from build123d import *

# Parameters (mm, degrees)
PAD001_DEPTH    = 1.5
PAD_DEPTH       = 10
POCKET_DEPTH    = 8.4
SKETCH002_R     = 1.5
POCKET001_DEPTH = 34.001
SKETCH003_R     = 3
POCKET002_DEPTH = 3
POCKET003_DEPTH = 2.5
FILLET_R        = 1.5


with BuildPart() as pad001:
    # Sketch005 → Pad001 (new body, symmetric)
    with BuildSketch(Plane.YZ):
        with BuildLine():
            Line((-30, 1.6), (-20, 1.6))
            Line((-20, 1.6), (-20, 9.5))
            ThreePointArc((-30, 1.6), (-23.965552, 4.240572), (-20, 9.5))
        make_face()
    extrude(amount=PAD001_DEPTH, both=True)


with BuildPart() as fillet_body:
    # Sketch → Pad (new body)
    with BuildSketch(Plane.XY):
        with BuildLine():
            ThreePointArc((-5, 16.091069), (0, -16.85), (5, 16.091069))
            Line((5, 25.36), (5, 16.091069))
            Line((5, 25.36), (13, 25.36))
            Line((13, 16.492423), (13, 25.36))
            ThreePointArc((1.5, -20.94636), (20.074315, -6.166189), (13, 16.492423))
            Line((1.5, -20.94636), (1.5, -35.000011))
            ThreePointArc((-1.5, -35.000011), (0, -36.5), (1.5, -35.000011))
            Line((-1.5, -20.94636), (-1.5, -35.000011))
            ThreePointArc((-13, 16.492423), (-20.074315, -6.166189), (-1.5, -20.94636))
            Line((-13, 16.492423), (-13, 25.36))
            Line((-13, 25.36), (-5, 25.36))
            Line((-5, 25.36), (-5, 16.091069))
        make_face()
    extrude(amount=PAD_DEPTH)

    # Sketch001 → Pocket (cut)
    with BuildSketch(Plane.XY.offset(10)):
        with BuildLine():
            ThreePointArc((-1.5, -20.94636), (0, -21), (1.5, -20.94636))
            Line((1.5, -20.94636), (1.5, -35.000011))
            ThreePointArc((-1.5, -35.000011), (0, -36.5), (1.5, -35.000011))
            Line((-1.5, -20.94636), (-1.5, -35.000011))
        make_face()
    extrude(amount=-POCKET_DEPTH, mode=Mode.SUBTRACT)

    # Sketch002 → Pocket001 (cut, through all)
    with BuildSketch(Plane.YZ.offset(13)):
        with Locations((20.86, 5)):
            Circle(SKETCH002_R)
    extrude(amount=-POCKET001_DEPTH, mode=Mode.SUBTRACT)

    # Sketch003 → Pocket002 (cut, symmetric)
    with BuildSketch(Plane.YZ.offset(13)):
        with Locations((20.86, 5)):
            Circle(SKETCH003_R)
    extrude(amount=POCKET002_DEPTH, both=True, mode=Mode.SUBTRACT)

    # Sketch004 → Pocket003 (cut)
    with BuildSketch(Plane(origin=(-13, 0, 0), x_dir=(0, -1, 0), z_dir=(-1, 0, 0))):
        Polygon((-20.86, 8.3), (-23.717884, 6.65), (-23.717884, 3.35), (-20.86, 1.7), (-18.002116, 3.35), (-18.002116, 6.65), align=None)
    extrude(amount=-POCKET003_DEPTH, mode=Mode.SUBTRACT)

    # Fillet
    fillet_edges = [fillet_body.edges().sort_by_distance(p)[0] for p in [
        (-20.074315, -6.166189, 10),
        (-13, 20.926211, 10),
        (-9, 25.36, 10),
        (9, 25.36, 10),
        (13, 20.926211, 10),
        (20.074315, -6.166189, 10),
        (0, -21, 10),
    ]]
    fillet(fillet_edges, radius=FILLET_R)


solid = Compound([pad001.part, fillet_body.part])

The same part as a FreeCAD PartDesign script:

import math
import FreeCAD as App
import Part
import Sketcher
from FreeCAD import Vector
Q = App.Units.Quantity


def edges_at(feature, points):
    """Names of the edges that pass closest to the given points."""
    edges = feature.Shape.Edges
    near = lambda p: min(range(len(edges)), key=lambda i: edges[i].distToShape(Part.Vertex(*p))[0])
    return sorted({f"Edge{near(p) + 1}" for p in points})


def add_polygon(sketch, points):
    """Adds a closed chain of lines whose ends are joined by coincident constraints."""
    first, n = sketch.GeometryCount, len(points)
    for a, b in zip(points, points[1:] + points[:1]):
        sketch.addGeometry(Part.LineSegment(App.Vector(*a, 0), App.Vector(*b, 0)), False)
    for i in range(n):
        sketch.addConstraint(Sketcher.Constraint("Coincident", first + i, 2, first + (i + 1) % n, 1))

doc = App.newDocument("Part")
body = doc.addObject("PartDesign::Body", "Body")

# Sketch on YZ plane
sketch1 = doc.addObject("Sketcher::SketchObject", "Sketch")
body.addObject(sketch1)
sketch1.AttachmentSupport = (doc.YZ_Plane, [""])
sketch1.MapMode = "FlatFace"
sketch1.addGeometry([
    Part.LineSegment(Vector(-30, 2, 0), Vector(-20, 2, 0)),
    Part.LineSegment(Vector(-20, 2, 0), Vector(-20, 10, 0)),
    Part.ArcOfCircle(Part.Circle(Vector(-32, 14, 0), Vector(0, 0, 1), 13), math.radians(-81), math.radians(-22)),
], False)
sketch1.addConstraint([
    Sketcher.Constraint("Coincident", 0, 2, 1, 1),
    Sketcher.Constraint("Coincident", 1, 2, 2, 2),
    Sketcher.Constraint("Coincident", 2, 1, 0, 1),
    Sketcher.Constraint("Horizontal", 0),
    Sketcher.Constraint("Vertical", 1),
    Sketcher.Constraint("DistanceX", 0, 1, 0, 2, Q("10 mm")),
    Sketcher.Constraint("DistanceY", 1, 1, 1, 2, Q("7.9 mm")),
    Sketcher.Constraint("DistanceX", 0, 2, -1, 1, Q("20 mm")),
    Sketcher.Constraint("DistanceY", -1, 1, 0, 2, Q("1.6 mm")),
    Sketcher.Constraint("Radius", 2, Q("13.000004 mm")),
])
pad1 = doc.addObject("PartDesign::Pad", "Pad")
body.addObject(pad1)
pad1.Profile = sketch1
pad1.Length = 3
pad1.Midplane = True
body2 = doc.addObject("PartDesign::Body", "Body001")

# Sketch on XY plane
sketch2 = doc.addObject("Sketcher::SketchObject", "Sketch001")
body2.addObject(sketch2)
sketch2.AttachmentSupport = (doc.getObject("XY_Plane001"), [""])
sketch2.MapMode = "FlatFace"
sketch2.addGeometry([
    Part.ArcOfCircle(Part.Circle(Vector(0, 0, 0), Vector(0, 0, 1), 16.9), math.radians(107), math.radians(433)),  # 0
    Part.LineSegment(Vector(-5, 16.1, 0), Vector(-5, 25.4, 0)),  # 1
    Part.LineSegment(Vector(-5, 25.4, 0), Vector(-13, 25.4, 0)),  # 2
    Part.LineSegment(Vector(-13, 25.4, 0), Vector(-13, 16.5, 0)),  # 3
    Part.ArcOfCircle(Part.Circle(Vector(0, 0, 0), Vector(0, 0, 1), 21), math.radians(128), math.radians(266)),  # 4
    Part.LineSegment(Vector(-1.5, -20.9, 0), Vector(-1.5, -35, 0)),  # 5
    Part.ArcOfCircle(Part.Circle(Vector(0, -35, 0), Vector(0, 0, 1), 1.5), math.radians(-180), math.radians(0)),  # 6
    Part.LineSegment(Vector(1.5, -35, 0), Vector(1.5, -20.9, 0)),  # 7
    Part.ArcOfCircle(Part.Circle(Vector(0, 0, 0), Vector(0, 0, 1), 21), math.radians(-86), math.radians(52)),  # 8
    Part.LineSegment(Vector(13, 16.5, 0), Vector(13, 25.4, 0)),  # 9
    Part.LineSegment(Vector(13, 25.4, 0), Vector(5, 25.4, 0)),  # 10
    Part.LineSegment(Vector(5, 25.4, 0), Vector(5, 16.1, 0)),  # 11
], False)
sketch2.addConstraint([
    Sketcher.Constraint("Coincident", 0, 1, 1, 1),
    Sketcher.Constraint("Coincident", 1, 2, 2, 1),
    Sketcher.Constraint("Coincident", 2, 2, 3, 1),
    Sketcher.Constraint("Coincident", 3, 2, 4, 1),
    Sketcher.Constraint("Coincident", 4, 2, 5, 1),
    Sketcher.Constraint("Coincident", 5, 2, 6, 1),
    Sketcher.Constraint("Coincident", 6, 2, 7, 1),
    Sketcher.Constraint("Coincident", 7, 2, 8, 1),
    Sketcher.Constraint("Coincident", 8, 2, 9, 1),
    Sketcher.Constraint("Coincident", 9, 2, 10, 1),
    Sketcher.Constraint("Coincident", 10, 2, 11, 1),
    Sketcher.Constraint("Coincident", 11, 2, 0, 2),
    Sketcher.Constraint("Vertical", 1),
    Sketcher.Constraint("Horizontal", 2),
    Sketcher.Constraint("Vertical", 3),
    Sketcher.Constraint("Vertical", 5),
    Sketcher.Constraint("Vertical", 7),
    Sketcher.Constraint("Vertical", 9),
    Sketcher.Constraint("Horizontal", 10),
    Sketcher.Constraint("Vertical", 11),
    Sketcher.Constraint("Coincident", 0, 3, -1, 1),
    Sketcher.Constraint("Coincident", 4, 3, -1, 1),
    Sketcher.Constraint("Coincident", 8, 3, -1, 1),
    Sketcher.Constraint("Equal", 4, 8),
    Sketcher.Constraint("Symmetric", 5, 2, 6, 2, -2),
    Sketcher.Constraint("Symmetric", 2, 2, 9, 2, -2),
    Sketcher.Constraint("Horizontal", 0, 1, 11, 2),
    Sketcher.Constraint("Radius", 4, Q("21 mm")),
    Sketcher.Constraint("Radius", 6, Q("1.5 mm")),
    Sketcher.Constraint("DistanceX", 2, 2, 2, 1, Q("8 mm")),
    Sketcher.Constraint("Radius", 0, Q("16.85 mm")),
    Sketcher.Constraint("DistanceY", 6, 3, -1, 1, Q("35 mm")),
    Sketcher.Constraint("DistanceX", 0, 1, -1, 1, Q("5 mm")),
    Sketcher.Constraint("DistanceY", -1, 1, 1, 2, Q("25.36 mm")),
    Sketcher.Constraint("DistanceY", 5, 2, 5, 1, Q("14.053651 mm")),
])
pad2 = doc.addObject("PartDesign::Pad", "Pad001")
body2.addObject(pad2)
pad2.Profile = sketch2
pad2.Length = 10

# Sketch on XY plane
sketch3 = doc.addObject("Sketcher::SketchObject", "Sketch002")
body2.addObject(sketch3)
sketch3.AttachmentSupport = (doc.getObject("XY_Plane001"), [""])
sketch3.MapMode = "FlatFace"
sketch3.AttachmentOffset = App.Placement(Vector(0, 0, 10), App.Rotation())
sketch3.addGeometry([
    Part.ArcOfCircle(Part.Circle(Vector(0, 0, 0), Vector(0, 0, 1), 21), math.radians(-94.1), math.radians(-85.9)),
    Part.LineSegment(Vector(-1.5, -20.9, 0), Vector(-1.5, -35, 0)),
    Part.ArcOfCircle(Part.Circle(Vector(0, -35, 0), Vector(0, 0, 1), 1.5), math.radians(-180), math.radians(0)),
    Part.LineSegment(Vector(1.5, -35, 0), Vector(1.5, -20.9, 0)),
], False)
sketch3.addConstraint([
    Sketcher.Constraint("Coincident", 0, 1, 1, 1),
    Sketcher.Constraint("Coincident", 1, 2, 2, 1),
    Sketcher.Constraint("Coincident", 2, 2, 3, 1),
    Sketcher.Constraint("Coincident", 3, 2, 0, 2),
    Sketcher.Constraint("Vertical", 1),
    Sketcher.Constraint("Vertical", 3),
    Sketcher.Constraint("Symmetric", 1, 2, 2, 2, -2),
    Sketcher.Constraint("PointOnObject", 0, 3, -2),
    Sketcher.Constraint("Radius", 2, Q("1.5 mm")),
    Sketcher.Constraint("DistanceY", 2, 3, -1, 1, Q("35 mm")),
    Sketcher.Constraint("Radius", 0, Q("20.999974 mm")),
    Sketcher.Constraint("DistanceY", 1, 2, 1, 1, Q("14.053651 mm")),
    Sketcher.Constraint("DistanceY", 0, 1, -1, 1, Q("20.94636 mm")),
])
pocket1 = doc.addObject("PartDesign::Pocket", "Pocket")
body2.addObject(pocket1)
pocket1.Profile = sketch3
pocket1.Length = 8.4

# Sketch on YZ plane
sketch4 = doc.addObject("Sketcher::SketchObject", "Sketch003")
body2.addObject(sketch4)
sketch4.AttachmentSupport = (doc.getObject("YZ_Plane001"), [""])
sketch4.MapMode = "FlatFace"
sketch4.AttachmentOffset = App.Placement(Vector(0, 0, 13), App.Rotation())
sketch4.addGeometry(Part.Circle(Vector(20.9, 5, 0), Vector(0, 0, 1), 1.5), False)
sketch4.addConstraint([
    Sketcher.Constraint("Diameter", 0, Q("3 mm")),
    Sketcher.Constraint("DistanceY", -1, 1, 0, 3, Q("5 mm")),
    Sketcher.Constraint("DistanceX", -1, 1, 0, 3, Q("20.86 mm")),
])
pocket2 = doc.addObject("PartDesign::Pocket", "Pocket001")
body2.addObject(pocket2)
pocket2.Profile = sketch4
pocket2.Type = "ThroughAll"

# Sketch on YZ plane
sketch5 = doc.addObject("Sketcher::SketchObject", "Sketch004")
body2.addObject(sketch5)
sketch5.AttachmentSupport = (doc.getObject("YZ_Plane001"), [""])
sketch5.MapMode = "FlatFace"
sketch5.AttachmentOffset = App.Placement(Vector(0, 0, 13), App.Rotation())
sketch5.addGeometry(Part.Circle(Vector(20.9, 5, 0), Vector(0, 0, 1), 3), False)
sketch5.addConstraint([
    Sketcher.Constraint("Diameter", 0, Q("6 mm")),
    Sketcher.Constraint("DistanceY", -1, 1, 0, 3, Q("5 mm")),
    Sketcher.Constraint("DistanceX", -1, 1, 0, 3, Q("20.86 mm")),
])
pocket3 = doc.addObject("PartDesign::Pocket", "Pocket002")
body2.addObject(pocket3)
pocket3.Profile = sketch5
pocket3.Length = 6
pocket3.Midplane = True

# Sketch on YZ plane
sketch6 = doc.addObject("Sketcher::SketchObject", "Sketch005")
body2.addObject(sketch6)
sketch6.AttachmentSupport = (doc.getObject("YZ_Plane001"), [""])
sketch6.MapMode = "FlatFace"
sketch6.AttachmentOffset = App.Placement(Vector(0, 0, -13), App.Rotation())
add_polygon(sketch6, [(20.9, 8.3), (23.7, 6.7), (23.7, 3.4), (20.9, 1.7), (18, 3.4), (18, 6.7)])  # lines 0-5
sketch6.addConstraint([
    Sketcher.Constraint("Vertical", 1),
    Sketcher.Constraint("Vertical", 4),
    Sketcher.Constraint("Parallel", 0, 3),
    Sketcher.Constraint("Parallel", 2, 5),
    Sketcher.Constraint("Horizontal", 1, 2, 3, 2),
    Sketcher.Constraint("Horizontal", 0, 2, 4, 2),
    Sketcher.Constraint("Vertical", 2, 2, 5, 2),
    Sketcher.Constraint("Angle", 0, Q("-29.999999 deg")),
    Sketcher.Constraint("DistanceY", 1, 2, 1, 1, Q("3.3 mm")),
    Sketcher.Constraint("Distance", 0, Q("3.3 mm")),
    Sketcher.Constraint("DistanceY", -1, 1, 2, 2, Q("1.7 mm")),
    Sketcher.Constraint("DistanceX", -1, 1, 2, 2, Q("20.86 mm")),
])
pocket4 = doc.addObject("PartDesign::Pocket", "Pocket003")
body2.addObject(pocket4)
pocket4.Profile = sketch6
pocket4.Length = 2.5
pocket4.Reversed = True
doc.recompute()

fillet = doc.addObject("PartDesign::Fillet", "Fillet")
body2.addObject(fillet)
fillet.Base = (pocket4, edges_at(pocket4, [
    (-20.074, -6.166, 10),
    (-13, 20.926, 10),
    (-9, 25.36, 10),
    (9, 25.36, 10),
    (13, 20.926, 10),
    (20.074, -6.166, 10),
    (0, -21, 10),
]))
fillet.Radius = 1.5

doc.recompute()
